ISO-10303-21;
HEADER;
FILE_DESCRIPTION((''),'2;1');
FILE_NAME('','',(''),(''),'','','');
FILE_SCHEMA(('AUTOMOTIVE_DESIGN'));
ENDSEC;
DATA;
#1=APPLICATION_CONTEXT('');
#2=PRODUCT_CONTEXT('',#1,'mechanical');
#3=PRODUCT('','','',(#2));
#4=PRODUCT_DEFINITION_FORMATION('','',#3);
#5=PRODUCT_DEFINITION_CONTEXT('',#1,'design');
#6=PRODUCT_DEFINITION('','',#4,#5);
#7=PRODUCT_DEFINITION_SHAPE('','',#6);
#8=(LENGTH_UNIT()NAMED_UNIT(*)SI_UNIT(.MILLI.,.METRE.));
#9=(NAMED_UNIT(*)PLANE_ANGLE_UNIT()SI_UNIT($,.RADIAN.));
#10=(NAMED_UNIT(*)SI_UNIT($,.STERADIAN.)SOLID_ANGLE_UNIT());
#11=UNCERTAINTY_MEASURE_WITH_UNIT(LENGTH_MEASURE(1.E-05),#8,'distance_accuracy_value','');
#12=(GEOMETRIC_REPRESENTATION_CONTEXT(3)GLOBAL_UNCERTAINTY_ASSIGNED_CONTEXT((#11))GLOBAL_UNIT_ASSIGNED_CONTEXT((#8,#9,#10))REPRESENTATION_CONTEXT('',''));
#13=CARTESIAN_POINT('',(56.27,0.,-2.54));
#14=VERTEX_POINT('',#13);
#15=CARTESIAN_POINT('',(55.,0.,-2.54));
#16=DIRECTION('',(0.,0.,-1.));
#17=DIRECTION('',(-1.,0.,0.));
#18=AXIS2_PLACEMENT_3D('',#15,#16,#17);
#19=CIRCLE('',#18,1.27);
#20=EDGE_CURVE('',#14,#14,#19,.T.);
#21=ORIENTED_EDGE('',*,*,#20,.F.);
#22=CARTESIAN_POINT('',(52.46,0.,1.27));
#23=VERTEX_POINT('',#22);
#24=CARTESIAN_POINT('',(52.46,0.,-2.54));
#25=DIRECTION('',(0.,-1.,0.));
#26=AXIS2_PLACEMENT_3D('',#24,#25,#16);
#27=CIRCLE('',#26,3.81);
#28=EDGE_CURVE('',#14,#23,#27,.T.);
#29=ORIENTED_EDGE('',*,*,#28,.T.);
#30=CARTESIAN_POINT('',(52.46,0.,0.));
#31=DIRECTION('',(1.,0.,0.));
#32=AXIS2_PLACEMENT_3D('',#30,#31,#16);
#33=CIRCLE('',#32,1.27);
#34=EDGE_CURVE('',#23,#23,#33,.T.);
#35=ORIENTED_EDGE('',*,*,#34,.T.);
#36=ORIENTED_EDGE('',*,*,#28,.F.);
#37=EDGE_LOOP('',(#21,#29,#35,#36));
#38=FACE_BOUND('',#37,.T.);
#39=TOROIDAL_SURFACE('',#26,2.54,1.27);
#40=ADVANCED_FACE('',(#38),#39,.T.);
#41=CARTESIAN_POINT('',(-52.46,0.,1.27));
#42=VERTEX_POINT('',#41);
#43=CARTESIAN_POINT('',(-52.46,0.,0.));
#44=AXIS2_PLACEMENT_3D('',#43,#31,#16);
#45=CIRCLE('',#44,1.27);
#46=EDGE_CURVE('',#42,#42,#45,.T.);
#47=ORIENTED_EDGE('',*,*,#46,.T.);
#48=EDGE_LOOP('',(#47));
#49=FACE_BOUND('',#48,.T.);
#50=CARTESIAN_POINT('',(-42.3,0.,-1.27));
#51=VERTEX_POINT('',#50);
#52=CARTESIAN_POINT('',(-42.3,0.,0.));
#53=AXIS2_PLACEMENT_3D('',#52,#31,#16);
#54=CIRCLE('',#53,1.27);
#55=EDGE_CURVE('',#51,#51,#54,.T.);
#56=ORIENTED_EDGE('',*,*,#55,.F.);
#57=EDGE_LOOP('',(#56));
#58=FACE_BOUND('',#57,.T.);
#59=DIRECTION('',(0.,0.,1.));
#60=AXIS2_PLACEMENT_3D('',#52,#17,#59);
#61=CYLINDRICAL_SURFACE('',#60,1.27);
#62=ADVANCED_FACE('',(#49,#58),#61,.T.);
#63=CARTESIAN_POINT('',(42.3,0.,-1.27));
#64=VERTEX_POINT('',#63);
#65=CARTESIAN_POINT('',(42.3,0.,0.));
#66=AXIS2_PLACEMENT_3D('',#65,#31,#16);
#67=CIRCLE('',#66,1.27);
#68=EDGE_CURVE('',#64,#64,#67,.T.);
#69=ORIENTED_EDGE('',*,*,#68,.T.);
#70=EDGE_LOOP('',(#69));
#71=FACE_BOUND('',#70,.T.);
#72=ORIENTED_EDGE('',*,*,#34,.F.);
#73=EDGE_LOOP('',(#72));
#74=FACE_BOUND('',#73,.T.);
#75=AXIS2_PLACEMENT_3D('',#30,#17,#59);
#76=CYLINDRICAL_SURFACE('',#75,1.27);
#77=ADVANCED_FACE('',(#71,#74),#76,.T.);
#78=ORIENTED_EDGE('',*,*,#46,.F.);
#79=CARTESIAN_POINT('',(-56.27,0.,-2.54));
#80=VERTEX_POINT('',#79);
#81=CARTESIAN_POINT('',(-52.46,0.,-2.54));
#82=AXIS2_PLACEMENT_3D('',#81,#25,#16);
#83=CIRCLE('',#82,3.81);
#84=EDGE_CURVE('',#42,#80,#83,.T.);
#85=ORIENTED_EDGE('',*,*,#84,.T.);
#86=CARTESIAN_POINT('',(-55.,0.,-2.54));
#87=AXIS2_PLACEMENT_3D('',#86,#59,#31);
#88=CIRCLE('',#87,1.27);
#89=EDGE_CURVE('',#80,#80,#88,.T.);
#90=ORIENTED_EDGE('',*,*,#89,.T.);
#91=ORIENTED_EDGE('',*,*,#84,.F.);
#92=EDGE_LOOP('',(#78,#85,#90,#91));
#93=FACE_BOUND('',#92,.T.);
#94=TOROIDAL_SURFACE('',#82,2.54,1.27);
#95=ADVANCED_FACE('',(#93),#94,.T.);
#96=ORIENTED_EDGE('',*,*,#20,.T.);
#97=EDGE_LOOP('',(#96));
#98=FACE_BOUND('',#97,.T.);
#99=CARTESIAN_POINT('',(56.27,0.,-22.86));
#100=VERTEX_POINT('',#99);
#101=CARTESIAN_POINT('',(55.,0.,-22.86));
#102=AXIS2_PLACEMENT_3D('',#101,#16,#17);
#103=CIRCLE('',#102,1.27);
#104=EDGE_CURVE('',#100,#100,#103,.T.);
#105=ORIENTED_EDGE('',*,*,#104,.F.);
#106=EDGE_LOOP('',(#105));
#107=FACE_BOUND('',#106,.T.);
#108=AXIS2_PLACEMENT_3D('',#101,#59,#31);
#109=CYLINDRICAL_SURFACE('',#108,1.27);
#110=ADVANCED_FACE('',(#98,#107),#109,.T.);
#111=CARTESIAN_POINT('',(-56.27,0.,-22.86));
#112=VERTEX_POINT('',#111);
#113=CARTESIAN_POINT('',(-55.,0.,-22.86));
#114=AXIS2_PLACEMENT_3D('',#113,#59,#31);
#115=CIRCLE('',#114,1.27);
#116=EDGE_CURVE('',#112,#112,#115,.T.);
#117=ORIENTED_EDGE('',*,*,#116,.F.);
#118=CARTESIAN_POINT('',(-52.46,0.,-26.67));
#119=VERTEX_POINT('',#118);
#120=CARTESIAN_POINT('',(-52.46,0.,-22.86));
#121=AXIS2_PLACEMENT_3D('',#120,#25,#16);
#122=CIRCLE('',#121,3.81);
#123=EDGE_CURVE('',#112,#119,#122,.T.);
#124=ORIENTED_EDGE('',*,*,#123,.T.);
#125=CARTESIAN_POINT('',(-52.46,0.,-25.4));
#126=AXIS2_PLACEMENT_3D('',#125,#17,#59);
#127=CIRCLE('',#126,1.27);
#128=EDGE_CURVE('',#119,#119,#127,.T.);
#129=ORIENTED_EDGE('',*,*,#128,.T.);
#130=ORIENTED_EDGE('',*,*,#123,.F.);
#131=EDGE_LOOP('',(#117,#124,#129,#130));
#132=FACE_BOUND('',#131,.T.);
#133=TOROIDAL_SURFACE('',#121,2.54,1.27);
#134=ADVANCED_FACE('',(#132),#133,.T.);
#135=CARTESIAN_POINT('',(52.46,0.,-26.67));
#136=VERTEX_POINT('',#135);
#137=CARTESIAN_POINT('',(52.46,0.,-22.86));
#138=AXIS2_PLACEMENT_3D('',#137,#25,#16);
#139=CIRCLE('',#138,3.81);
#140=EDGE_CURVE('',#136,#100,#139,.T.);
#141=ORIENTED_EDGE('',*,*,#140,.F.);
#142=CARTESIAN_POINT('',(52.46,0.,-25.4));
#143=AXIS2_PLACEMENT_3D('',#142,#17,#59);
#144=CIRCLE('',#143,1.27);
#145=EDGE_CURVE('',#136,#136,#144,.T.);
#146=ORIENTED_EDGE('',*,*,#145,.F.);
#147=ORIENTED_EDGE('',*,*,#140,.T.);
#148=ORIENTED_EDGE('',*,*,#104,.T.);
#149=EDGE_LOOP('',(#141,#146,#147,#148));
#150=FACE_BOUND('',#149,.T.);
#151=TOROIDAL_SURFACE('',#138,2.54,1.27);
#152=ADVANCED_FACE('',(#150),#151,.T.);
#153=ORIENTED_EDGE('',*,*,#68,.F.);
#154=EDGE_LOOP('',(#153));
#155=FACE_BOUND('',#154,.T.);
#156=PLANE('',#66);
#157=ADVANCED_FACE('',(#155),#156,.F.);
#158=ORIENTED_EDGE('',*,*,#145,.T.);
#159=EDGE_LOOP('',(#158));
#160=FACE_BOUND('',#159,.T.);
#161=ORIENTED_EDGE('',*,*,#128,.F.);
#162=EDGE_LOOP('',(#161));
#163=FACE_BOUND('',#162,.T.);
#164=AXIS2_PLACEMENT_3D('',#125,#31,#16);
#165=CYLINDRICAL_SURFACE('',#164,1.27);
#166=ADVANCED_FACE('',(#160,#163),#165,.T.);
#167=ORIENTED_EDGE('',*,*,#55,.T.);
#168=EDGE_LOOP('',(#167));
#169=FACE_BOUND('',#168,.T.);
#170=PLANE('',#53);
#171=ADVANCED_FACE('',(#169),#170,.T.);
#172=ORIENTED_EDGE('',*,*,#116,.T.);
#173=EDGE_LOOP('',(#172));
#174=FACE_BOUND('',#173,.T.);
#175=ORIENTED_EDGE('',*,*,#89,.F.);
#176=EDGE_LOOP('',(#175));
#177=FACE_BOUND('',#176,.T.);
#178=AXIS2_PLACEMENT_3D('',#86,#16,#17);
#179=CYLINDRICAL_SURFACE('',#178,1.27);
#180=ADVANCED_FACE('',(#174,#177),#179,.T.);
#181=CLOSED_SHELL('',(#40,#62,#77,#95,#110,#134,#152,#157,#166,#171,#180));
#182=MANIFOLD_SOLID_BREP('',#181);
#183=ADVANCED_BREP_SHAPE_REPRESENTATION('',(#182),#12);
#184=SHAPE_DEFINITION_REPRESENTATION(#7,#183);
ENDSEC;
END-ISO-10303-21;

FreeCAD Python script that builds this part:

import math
import FreeCAD as App
import Part
import Sketcher
from FreeCAD import Vector
Q = App.Units.Quantity

doc = App.newDocument("Part")
body = doc.addObject("PartDesign::Body", "Body")

sketch1 = body.newObject("Sketcher::SketchObject", "Sketch")
sketch1.AttachmentSupport = (doc.getObject("YZ_Plane"), [""])
sketch1.MapMode = "FlatFace"
sketch1.AttachmentOffset = App.Placement(Vector(0, 0, -42.3), App.Rotation())
sketch1.addGeometry(Part.Circle(Vector(0, 0, 0), Vector(0, 0, 1), 1.3), False)
sketch1.addConstraint(Sketcher.Constraint("Coincident", 0, 3, -1, 1))
sketch1.addConstraint(Sketcher.Constraint("Diameter", 0, Q("0.1 in")))

sketch2 = body.newObject("Sketcher::SketchObject", "Sketch001")
sketch2.AttachmentSupport = (doc.getObject("XZ_Plane"), [""])
sketch2.MapMode = "FlatFace"
sketch2.addGeometry(Part.LineSegment(Vector(-42.3, 0, 0), Vector(-52.5, 0, 0)), False)
sketch2.addGeometry(Part.ArcOfCircle(Part.Circle(Vector(-52.5, -2.5, 0), Vector(0, 0, 1), 2.5), math.radians(90), math.radians(180)), False)
sketch2.addGeometry(Part.LineSegment(Vector(-55, -2.5, 0), Vector(-55, -22.9, 0)), False)
sketch2.addGeometry(Part.ArcOfCircle(Part.Circle(Vector(-52.5, -22.9, 0), Vector(0, 0, 1), 2.5), math.radians(-180), math.radians(-90)), False)
sketch2.addGeometry(Part.LineSegment(Vector(-52.5, -25.4, 0), Vector(52.5, -25.4, 0)), False)
sketch2.addGeometry(Part.ArcOfCircle(Part.Circle(Vector(52.5, -22.9, 0), Vector(0, 0, 1), 2.5), math.radians(-90), math.radians(0)), False)
sketch2.addGeometry(Part.LineSegment(Vector(55, -22.9, 0), Vector(55, -2.5, 0)), False)
sketch2.addGeometry(Part.ArcOfCircle(Part.Circle(Vector(52.5, -2.5, 0), Vector(0, 0, 1), 2.5), math.radians(0), math.radians(90)), False)
sketch2.addGeometry(Part.LineSegment(Vector(52.5, 0, 0), Vector(42.3, 0, 0)), False)
sketch2.addConstraint(Sketcher.Constraint("Tangent", 0, 2, 1, 1))
sketch2.addConstraint(Sketcher.Constraint("Tangent", 1, 2, 2, 1))
sketch2.addConstraint(Sketcher.Constraint("Tangent", 2, 2, 3, 1))
sketch2.addConstraint(Sketcher.Constraint("Tangent", 3, 2, 4, 1))
sketch2.addConstraint(Sketcher.Constraint("Tangent", 4, 2, 5, 1))
sketch2.addConstraint(Sketcher.Constraint("Tangent", 5, 2, 6, 1))
sketch2.addConstraint(Sketcher.Constraint("Tangent", 6, 2, 7, 1))
sketch2.addConstraint(Sketcher.Constraint("Tangent", 7, 2, 8, 1))
sketch2.addConstraint(Sketcher.Constraint("Horizontal", 0))
sketch2.addConstraint(Sketcher.Constraint("Vertical", 2))
sketch2.addConstraint(Sketcher.Constraint("Horizontal", 4))
sketch2.addConstraint(Sketcher.Constraint("Vertical", 6))
sketch2.addConstraint(Sketcher.Constraint("Horizontal", 8))
sketch2.addConstraint(Sketcher.Constraint("Equal", 1, 3))
sketch2.addConstraint(Sketcher.Constraint("Equal", 3, 5))
sketch2.addConstraint(Sketcher.Constraint("Equal", 5, 7))
sketch2.addConstraint(Sketcher.Constraint("Symmetric", 0, 2, 7, 2, -1, 1))
sketch2.addConstraint(Sketcher.Constraint("Symmetric", 0, 1, 8, 2, -2))
sketch2.addConstraint(Sketcher.Constraint("Radius", 1, Q("0.1 in")))
sketch2.addConstraint(Sketcher.Constraint("DistanceX", 0, 2, 0, 1, Q("0.4 in")))
sketch2.addConstraint(Sketcher.Constraint("DistanceY", 2, 2, 2, 1, Q("0.8 in")))
sketch2.addConstraint(Sketcher.Constraint("DistanceX", 4, 1, 4, 2, Q("104.92 mm")))
doc.recompute()

additivepipe = body.newObject("PartDesign::AdditivePipe", "AdditivePipe")
additivepipe.Profile = sketch1
additivepipe.Spine = (sketch2, ["Edge1", "Edge2", "Edge3", "Edge4", "Edge5", "Edge6", "Edge7", "Edge8", "Edge9"])

doc.recompute()
